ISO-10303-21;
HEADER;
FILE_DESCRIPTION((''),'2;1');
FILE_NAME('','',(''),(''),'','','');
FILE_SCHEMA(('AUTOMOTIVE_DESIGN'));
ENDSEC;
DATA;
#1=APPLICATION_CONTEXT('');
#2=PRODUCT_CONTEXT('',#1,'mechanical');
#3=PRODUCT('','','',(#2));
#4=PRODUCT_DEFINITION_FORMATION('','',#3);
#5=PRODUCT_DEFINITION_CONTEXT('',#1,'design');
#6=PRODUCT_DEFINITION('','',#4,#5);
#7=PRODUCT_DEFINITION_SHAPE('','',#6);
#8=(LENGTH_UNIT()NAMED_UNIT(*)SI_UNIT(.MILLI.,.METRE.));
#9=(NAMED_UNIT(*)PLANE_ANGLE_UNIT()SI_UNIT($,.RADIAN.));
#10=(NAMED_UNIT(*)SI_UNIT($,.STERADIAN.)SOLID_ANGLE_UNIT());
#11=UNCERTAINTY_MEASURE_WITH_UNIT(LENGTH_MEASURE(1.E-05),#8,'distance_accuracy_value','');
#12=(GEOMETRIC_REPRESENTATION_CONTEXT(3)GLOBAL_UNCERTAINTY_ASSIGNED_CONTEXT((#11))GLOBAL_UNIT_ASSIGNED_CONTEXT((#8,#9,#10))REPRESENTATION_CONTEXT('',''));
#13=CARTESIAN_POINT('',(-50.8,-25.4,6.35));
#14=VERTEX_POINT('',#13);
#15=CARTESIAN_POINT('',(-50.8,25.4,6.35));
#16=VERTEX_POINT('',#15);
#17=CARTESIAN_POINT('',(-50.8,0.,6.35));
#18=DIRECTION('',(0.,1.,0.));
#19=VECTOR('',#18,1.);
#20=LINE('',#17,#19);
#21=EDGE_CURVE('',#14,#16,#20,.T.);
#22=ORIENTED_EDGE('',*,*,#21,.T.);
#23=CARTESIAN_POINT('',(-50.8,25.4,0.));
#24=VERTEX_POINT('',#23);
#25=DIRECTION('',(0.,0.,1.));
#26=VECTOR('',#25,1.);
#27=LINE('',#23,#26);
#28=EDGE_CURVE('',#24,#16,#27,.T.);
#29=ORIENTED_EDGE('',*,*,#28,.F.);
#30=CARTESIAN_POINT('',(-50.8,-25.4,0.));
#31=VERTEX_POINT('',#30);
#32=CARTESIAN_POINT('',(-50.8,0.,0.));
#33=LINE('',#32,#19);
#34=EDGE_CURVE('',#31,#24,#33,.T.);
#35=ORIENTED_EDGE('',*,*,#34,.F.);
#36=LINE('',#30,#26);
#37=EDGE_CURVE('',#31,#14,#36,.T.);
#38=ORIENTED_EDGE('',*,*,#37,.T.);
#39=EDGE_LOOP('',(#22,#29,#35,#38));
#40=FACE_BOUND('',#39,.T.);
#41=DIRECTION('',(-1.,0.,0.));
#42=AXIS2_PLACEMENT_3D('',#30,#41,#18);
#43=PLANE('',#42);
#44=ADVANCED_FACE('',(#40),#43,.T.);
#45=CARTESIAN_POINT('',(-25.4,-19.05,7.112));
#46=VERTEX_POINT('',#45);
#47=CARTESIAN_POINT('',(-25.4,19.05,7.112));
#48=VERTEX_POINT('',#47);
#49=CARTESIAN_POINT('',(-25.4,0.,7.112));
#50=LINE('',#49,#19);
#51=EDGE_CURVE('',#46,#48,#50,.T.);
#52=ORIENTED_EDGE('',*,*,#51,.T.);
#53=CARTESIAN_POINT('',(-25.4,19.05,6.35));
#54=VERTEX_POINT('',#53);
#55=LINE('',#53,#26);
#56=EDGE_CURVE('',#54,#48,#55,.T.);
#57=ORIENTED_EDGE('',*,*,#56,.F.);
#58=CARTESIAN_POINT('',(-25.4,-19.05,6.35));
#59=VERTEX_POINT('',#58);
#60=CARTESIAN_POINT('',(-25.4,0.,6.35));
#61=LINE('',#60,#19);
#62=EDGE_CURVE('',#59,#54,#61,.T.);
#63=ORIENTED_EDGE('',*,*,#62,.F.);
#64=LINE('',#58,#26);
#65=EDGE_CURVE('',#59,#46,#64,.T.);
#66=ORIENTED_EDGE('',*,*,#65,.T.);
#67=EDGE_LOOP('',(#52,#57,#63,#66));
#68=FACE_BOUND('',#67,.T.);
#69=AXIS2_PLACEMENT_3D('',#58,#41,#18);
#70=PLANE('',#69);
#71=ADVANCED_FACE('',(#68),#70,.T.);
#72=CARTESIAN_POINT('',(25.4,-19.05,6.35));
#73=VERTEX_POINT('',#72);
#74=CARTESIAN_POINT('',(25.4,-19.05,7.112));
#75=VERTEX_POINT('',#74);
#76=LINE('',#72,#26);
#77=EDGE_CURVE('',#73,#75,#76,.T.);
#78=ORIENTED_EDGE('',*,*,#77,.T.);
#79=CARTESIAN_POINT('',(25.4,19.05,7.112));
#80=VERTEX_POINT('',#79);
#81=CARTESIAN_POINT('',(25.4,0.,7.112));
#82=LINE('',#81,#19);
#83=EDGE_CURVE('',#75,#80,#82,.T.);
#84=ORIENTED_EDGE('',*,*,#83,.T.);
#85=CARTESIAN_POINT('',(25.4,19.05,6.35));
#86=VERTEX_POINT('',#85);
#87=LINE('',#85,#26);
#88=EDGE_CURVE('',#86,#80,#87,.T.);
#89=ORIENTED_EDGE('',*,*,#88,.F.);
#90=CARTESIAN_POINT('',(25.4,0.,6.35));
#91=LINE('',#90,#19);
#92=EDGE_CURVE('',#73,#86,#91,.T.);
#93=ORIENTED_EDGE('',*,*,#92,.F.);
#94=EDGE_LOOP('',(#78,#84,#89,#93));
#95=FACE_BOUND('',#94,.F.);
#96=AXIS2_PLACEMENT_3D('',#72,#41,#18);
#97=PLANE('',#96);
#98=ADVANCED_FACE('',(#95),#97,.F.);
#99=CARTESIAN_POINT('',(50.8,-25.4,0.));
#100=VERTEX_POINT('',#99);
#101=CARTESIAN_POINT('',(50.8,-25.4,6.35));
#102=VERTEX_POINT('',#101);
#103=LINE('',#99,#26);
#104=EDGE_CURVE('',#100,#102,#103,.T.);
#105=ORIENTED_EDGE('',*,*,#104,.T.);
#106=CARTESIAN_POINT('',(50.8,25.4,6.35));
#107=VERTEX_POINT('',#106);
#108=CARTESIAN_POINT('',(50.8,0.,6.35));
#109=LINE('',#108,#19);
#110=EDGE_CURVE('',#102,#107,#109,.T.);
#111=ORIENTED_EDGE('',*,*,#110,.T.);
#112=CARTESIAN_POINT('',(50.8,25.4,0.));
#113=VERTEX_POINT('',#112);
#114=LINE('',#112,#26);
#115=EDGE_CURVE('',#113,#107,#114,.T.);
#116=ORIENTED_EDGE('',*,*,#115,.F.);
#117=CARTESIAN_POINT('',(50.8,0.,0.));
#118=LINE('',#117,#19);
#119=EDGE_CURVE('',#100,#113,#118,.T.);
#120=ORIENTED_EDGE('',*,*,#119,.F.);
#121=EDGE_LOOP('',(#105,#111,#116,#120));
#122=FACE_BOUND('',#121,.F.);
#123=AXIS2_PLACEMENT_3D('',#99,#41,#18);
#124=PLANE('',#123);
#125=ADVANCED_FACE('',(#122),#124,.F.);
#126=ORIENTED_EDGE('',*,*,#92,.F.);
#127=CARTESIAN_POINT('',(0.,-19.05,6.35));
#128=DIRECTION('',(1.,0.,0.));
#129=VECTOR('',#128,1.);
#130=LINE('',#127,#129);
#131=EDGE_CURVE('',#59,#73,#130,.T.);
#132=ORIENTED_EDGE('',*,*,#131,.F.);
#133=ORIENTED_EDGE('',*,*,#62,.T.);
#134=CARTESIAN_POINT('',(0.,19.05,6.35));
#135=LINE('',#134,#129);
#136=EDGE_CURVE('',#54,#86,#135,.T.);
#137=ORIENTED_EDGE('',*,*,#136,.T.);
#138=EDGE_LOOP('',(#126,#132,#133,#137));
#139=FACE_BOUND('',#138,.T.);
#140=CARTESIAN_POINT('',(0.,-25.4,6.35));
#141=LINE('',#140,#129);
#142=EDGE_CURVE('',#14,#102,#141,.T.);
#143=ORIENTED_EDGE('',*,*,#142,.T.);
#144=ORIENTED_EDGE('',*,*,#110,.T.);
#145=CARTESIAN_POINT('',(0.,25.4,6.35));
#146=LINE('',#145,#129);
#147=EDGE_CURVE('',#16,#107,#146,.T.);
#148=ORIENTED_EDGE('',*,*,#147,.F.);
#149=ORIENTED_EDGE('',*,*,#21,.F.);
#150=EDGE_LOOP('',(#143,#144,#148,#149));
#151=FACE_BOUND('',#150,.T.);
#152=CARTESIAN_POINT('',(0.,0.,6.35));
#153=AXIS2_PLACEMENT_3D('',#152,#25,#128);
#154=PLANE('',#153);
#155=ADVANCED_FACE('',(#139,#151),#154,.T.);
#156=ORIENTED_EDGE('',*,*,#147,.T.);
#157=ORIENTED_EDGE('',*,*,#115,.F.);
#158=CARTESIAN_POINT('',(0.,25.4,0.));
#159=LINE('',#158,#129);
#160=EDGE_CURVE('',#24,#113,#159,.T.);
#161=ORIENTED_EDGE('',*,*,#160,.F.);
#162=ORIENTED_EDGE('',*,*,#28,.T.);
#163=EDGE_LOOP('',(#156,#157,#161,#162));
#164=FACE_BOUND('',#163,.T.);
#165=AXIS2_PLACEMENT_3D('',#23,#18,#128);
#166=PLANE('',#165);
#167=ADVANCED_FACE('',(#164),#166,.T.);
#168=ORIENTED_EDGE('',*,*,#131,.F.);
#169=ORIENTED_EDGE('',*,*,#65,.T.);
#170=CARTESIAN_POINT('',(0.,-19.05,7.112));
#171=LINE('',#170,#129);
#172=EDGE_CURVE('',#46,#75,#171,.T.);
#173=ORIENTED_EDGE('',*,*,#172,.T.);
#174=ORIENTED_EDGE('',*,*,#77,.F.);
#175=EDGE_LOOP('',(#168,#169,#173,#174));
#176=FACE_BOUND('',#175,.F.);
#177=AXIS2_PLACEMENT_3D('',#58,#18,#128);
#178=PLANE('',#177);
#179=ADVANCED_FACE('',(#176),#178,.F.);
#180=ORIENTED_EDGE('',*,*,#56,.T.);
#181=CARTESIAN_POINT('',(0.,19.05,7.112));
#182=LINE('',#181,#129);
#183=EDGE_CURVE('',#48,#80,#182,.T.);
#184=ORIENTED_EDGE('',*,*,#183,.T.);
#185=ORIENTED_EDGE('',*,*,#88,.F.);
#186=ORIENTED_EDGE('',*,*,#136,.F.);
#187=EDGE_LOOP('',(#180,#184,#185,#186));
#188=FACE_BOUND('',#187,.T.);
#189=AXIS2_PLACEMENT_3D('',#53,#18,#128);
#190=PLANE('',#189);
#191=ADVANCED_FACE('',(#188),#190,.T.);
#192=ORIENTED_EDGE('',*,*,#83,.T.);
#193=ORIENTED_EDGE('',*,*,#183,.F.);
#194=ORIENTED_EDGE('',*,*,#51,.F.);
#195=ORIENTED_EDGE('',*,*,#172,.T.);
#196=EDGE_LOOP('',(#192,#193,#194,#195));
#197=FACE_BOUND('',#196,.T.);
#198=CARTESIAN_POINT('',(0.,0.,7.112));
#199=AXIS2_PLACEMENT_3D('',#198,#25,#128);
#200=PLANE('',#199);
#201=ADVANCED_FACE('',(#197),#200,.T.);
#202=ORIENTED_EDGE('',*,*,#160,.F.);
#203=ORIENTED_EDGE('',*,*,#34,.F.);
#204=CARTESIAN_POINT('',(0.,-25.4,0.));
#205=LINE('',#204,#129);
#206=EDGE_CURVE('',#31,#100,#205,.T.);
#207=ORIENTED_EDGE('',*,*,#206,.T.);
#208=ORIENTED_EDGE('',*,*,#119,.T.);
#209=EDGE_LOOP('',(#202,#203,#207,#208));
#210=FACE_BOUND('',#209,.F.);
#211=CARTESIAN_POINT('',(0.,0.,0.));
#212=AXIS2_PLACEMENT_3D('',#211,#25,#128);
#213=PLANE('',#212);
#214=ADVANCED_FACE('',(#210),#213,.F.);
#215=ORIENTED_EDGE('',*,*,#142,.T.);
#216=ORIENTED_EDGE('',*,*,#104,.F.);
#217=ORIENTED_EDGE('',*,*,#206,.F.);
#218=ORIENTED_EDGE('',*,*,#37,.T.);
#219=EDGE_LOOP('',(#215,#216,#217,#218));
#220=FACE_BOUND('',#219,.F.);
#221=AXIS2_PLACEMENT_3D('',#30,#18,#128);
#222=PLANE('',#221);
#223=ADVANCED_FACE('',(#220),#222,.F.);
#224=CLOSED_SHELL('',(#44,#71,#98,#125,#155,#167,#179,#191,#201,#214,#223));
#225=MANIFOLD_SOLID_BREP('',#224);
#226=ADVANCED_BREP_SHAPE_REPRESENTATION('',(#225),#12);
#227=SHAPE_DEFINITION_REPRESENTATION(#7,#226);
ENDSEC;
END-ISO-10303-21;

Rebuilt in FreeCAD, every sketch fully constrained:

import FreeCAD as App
import Part
import Sketcher
Q = App.Units.Quantity


def add_polygon(sketch, points):
    """Adds a closed chain of lines whose ends are joined by coincident constraints."""
    first, n = sketch.GeometryCount, len(points)
    for a, b in zip(points, points[1:] + points[:1]):
        sketch.addGeometry(Part.LineSegment(App.Vector(*a, 0), App.Vector(*b, 0)), False)
    for i in range(n):
        sketch.addConstraint(Sketcher.Constraint("Coincident", first + i, 2, first + (i + 1) % n, 1))

doc = App.newDocument("Part")
params = doc.addObject("Spreadsheet::Sheet", "Params")
for row, (alias, value) in enumerate([
    ("sketch1_width", "4 in"),
    ("sketch1_height", "2 in"),
    ("pad1_length", "0.25 in"),
    ("sketch2_width", "2 in"),
    ("sketch2_height", "1.5 in"),
    ("pad2_length", "0.03 in"),
], start=1):
    params.set(f"A{row}", alias)
    params.set(f"B{row}", "=" + value)
    params.setAlias(f"B{row}", alias)

body = doc.addObject("PartDesign::Body", "Body")

# Sketch on XY plane
sketch1 = body.newObject("Sketcher::SketchObject", "Sketch")
sketch1.AttachmentSupport = (doc.getObject("XY_Plane"), [""])
sketch1.MapMode = "FlatFace"
add_polygon(sketch1, [(-51, 25), (-51, -25), (51, -25), (51, 25)])  # lines 0-3
sketch1.addConstraint(Sketcher.Constraint("Vertical", 0))
sketch1.addConstraint(Sketcher.Constraint("Horizontal", 1))
sketch1.addConstraint(Sketcher.Constraint("Vertical", 2))
sketch1.addConstraint(Sketcher.Constraint("Horizontal", 3))
sketch1.addConstraint(Sketcher.Constraint("Symmetric", 0, 2, 2, 2, -1, 1))
sketch1.addConstraint(Sketcher.Constraint("DistanceX", 1, 1, 1, 2, Q("4 in")))
sketch1.addConstraint(Sketcher.Constraint("DistanceY", 0, 2, 0, 1, Q("2 in")))
sketch1.setExpression("Constraints[9]", "Params.sketch1_width")
sketch1.setExpression("Constraints[10]", "Params.sketch1_height")
pad1 = body.newObject("PartDesign::Pad", "Pad")
pad1.Profile = sketch1
pad1.setExpression("Length", "Params.pad1_length")

# Sketch on XY plane
sketch2 = body.newObject("Sketcher::SketchObject", "Sketch001")
sketch2.AttachmentSupport = (doc.getObject("XY_Plane"), [""])
sketch2.MapMode = "FlatFace"
sketch2.AttachmentOffset = App.Placement(App.Vector(0, 0, 0.25 * 25.4), App.Rotation())
add_polygon(sketch2, [(-25, 19), (-25, -19), (25, -19), (25, 19)])  # lines 0-3
sketch2.addConstraint(Sketcher.Constraint("Vertical", 0))
sketch2.addConstraint(Sketcher.Constraint("Horizontal", 1))
sketch2.addConstraint(Sketcher.Constraint("Vertical", 2))
sketch2.addConstraint(Sketcher.Constraint("Horizontal", 3))
sketch2.addConstraint(Sketcher.Constraint("Symmetric", 0, 2, 2, 2, -1, 1))
sketch2.addConstraint(Sketcher.Constraint("DistanceX", 1, 1, 1, 2, Q("2 in")))
sketch2.addConstraint(Sketcher.Constraint("DistanceY", 0, 2, 0, 1, Q("1.5 in")))
sketch2.setExpression("Constraints[9]", "Params.sketch2_width")
sketch2.setExpression("Constraints[10]", "Params.sketch2_height")
pad2 = body.newObject("PartDesign::Pad", "Pad001")
pad2.Profile = sketch2
pad2.setExpression("Length", "Params.pad2_length")

doc.recompute()
